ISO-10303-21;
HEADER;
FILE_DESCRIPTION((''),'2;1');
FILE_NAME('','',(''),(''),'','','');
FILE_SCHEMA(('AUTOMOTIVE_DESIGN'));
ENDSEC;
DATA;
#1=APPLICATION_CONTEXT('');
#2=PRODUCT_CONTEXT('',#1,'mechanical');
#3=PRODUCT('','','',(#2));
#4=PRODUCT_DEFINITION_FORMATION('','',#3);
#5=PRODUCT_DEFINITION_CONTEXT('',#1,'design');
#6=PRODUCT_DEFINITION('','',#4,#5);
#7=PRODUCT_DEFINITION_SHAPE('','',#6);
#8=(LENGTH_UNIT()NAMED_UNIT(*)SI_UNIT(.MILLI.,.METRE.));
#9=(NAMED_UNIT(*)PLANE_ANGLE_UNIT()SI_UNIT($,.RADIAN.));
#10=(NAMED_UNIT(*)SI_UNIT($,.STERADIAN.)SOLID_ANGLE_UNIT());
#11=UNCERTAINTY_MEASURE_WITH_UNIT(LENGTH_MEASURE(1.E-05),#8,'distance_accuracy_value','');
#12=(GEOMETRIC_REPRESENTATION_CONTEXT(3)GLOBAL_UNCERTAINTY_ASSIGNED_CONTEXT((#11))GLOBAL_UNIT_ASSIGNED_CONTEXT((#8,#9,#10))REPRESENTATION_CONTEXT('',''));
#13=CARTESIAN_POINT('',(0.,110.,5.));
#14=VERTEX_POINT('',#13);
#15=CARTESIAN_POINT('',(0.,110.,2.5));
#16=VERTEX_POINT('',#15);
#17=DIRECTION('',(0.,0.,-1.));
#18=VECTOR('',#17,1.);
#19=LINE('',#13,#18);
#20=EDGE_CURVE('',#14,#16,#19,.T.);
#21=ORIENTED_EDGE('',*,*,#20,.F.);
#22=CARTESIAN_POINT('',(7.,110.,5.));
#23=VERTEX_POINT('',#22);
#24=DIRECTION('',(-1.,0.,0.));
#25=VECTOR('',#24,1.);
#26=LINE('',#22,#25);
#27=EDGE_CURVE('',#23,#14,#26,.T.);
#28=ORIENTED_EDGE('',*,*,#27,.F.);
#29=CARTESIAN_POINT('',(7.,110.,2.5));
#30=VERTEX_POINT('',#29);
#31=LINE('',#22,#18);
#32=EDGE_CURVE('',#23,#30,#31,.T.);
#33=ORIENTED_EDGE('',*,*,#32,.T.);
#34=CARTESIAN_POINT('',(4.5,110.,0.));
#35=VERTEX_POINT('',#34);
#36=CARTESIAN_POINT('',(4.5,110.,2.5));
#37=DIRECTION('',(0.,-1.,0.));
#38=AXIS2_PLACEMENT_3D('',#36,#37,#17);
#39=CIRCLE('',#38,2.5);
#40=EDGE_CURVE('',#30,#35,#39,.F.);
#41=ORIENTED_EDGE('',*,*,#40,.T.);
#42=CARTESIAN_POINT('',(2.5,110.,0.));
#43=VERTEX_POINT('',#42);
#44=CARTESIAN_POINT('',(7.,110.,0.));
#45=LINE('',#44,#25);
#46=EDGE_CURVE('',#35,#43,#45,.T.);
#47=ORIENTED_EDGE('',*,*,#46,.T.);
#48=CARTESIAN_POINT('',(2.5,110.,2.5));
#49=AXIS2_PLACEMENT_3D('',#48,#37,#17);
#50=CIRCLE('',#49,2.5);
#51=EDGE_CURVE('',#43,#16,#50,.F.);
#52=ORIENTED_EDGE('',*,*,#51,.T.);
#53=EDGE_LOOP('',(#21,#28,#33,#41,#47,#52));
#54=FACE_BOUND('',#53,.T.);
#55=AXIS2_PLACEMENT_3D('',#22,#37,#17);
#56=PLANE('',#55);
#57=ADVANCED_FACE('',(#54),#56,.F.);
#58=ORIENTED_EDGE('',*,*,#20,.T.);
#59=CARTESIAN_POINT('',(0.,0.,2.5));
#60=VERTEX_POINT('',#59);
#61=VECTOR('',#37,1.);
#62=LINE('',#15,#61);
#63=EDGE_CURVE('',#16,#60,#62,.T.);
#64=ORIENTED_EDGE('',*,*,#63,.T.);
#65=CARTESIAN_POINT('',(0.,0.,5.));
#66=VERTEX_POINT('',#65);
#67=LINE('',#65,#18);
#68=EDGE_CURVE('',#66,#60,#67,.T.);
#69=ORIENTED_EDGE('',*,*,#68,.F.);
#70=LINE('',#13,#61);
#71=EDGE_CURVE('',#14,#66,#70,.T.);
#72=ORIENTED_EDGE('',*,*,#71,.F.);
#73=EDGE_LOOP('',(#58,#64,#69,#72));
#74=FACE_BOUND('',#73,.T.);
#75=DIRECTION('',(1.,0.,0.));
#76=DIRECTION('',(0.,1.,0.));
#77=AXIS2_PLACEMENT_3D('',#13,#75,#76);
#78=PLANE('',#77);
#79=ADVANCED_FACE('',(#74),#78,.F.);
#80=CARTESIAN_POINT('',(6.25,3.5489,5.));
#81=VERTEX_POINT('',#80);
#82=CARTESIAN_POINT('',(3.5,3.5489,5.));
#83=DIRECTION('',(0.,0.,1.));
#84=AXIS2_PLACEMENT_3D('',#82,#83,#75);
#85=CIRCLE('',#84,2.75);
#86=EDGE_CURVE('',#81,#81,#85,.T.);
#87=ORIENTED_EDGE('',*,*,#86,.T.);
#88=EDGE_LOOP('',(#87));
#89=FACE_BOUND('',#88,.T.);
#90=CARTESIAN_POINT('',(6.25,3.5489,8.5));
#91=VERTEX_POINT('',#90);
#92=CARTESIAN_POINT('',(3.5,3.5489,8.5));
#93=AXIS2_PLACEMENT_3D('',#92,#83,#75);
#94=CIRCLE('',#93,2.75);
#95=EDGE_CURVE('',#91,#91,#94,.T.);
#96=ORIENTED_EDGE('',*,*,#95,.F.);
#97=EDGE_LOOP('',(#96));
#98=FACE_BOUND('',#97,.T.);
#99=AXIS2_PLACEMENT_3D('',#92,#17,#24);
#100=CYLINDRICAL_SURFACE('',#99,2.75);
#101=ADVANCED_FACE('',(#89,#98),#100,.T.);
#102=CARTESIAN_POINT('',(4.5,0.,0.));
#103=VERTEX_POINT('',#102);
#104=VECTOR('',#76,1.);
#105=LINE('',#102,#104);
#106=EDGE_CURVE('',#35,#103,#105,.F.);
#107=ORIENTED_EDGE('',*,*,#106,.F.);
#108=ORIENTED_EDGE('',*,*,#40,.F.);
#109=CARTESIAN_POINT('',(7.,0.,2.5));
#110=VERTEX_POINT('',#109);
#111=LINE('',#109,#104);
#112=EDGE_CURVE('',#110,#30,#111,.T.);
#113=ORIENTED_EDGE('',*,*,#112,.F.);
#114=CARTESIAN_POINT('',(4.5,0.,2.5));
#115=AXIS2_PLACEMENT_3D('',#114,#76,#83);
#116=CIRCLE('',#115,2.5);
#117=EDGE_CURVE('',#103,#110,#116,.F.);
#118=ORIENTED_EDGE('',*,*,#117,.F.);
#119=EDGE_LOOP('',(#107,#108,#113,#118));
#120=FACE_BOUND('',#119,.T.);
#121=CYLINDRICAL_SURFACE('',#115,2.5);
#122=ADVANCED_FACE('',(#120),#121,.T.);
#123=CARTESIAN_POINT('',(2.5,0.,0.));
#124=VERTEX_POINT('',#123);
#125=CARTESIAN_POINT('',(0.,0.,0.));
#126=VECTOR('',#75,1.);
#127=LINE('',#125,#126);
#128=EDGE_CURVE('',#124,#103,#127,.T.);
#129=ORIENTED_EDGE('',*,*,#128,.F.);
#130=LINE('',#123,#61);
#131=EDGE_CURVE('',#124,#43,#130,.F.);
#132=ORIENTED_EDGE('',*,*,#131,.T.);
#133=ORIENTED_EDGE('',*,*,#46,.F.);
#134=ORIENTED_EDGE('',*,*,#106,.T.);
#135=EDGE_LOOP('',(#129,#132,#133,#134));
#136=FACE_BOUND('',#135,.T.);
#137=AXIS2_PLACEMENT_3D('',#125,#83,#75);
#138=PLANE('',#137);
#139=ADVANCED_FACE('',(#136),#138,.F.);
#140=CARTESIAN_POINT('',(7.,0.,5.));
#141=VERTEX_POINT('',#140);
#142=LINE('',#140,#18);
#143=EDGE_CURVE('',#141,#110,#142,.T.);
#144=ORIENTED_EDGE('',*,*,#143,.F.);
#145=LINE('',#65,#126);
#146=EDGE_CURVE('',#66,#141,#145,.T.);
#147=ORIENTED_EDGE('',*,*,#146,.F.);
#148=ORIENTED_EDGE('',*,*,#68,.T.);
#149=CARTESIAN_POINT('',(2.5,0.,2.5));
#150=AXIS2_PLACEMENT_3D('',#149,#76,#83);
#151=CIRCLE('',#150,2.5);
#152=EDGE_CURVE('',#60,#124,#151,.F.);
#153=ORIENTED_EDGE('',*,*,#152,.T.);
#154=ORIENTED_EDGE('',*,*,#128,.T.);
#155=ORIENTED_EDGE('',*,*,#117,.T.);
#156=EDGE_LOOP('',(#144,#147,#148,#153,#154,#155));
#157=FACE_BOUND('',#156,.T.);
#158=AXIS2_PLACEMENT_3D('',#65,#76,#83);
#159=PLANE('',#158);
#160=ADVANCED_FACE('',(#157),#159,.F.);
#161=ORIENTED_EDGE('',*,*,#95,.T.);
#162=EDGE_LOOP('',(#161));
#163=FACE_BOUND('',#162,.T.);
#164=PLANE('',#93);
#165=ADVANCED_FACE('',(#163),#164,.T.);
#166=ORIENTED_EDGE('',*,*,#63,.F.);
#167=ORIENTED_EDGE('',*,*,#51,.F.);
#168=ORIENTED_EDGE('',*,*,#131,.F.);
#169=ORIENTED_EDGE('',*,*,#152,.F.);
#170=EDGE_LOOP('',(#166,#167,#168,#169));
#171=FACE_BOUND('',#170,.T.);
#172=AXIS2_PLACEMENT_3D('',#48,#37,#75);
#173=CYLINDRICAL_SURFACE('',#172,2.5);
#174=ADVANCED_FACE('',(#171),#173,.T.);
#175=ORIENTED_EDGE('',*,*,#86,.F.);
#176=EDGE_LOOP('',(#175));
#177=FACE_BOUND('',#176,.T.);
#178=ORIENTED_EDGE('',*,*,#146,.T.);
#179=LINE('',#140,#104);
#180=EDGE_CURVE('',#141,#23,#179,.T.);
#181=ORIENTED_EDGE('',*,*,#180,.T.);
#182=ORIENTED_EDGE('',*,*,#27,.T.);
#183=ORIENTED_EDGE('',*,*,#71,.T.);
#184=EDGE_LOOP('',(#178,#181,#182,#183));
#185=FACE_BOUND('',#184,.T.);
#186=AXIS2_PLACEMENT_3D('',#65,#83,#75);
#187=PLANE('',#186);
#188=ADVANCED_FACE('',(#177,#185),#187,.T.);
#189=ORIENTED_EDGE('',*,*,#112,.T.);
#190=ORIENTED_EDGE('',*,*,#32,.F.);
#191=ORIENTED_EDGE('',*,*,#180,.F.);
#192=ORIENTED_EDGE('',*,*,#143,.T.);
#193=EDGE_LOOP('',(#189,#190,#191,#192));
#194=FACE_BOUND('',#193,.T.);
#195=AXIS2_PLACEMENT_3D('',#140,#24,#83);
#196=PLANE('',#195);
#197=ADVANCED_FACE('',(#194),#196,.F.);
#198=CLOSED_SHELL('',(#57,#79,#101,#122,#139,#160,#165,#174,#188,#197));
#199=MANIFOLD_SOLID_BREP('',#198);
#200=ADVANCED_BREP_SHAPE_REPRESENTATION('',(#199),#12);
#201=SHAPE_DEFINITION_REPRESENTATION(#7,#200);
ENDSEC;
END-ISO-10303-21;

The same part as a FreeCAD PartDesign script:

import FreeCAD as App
import Part
import Sketcher

V = App.Vector


def edges_at(feature, points):
    """Names of the edges that pass closest to the given points."""
    edges = feature.Shape.Edges
    near = lambda p: min(range(len(edges)), key=lambda i: edges[i].distToShape(Part.Vertex(*p))[0])
    return sorted({f"Edge{near(p) + 1}" for p in points})


def add_polygon(sketch, points):
    """Adds a closed chain of lines whose ends are joined by coincident constraints."""
    first, n = sketch.GeometryCount, len(points)
    for a, b in zip(points, points[1:] + points[:1]):
        sketch.addGeometry(Part.LineSegment(App.Vector(*a, 0), App.Vector(*b, 0)), False)
    for i in range(n):
        sketch.addConstraint(Sketcher.Constraint("Coincident", first + i, 2, first + (i + 1) % n, 1))

doc = App.newDocument("Part")
body = doc.addObject("PartDesign::Body", "Body")

# Sketch on XY plane
sketch1 = body.newObject("Sketcher::SketchObject", "Sketch")
sketch1.AttachmentSupport = (doc.getObject("XY_Plane"), [""])
sketch1.MapMode = "FlatFace"
add_polygon(sketch1, [(0, 110), (0, 0), (7, 0), (7, 110)])  # lines 0-3
sketch1.addConstraint(Sketcher.Constraint("Vertical", 0))
sketch1.addConstraint(Sketcher.Constraint("Horizontal", 1))
sketch1.addConstraint(Sketcher.Constraint("Vertical", 2))
sketch1.addConstraint(Sketcher.Constraint("Horizontal", 3))
sketch1.addConstraint(Sketcher.Constraint("Coincident", 0, 2, -1, 1))
sketch1.addConstraint(Sketcher.Constraint("DistanceX", 1, 1, 1, 2, 7.0))
sketch1.addConstraint(Sketcher.Constraint("DistanceY", 0, 2, 0, 1, 110.0))
pad1 = body.newObject("PartDesign::Pad", "Pad")
pad1.Profile = sketch1
pad1.Length = 5
doc.recompute()

fillet = body.newObject("PartDesign::Fillet", "Fillet")
fillet.Base = (pad1, edges_at(pad1, [(7, 55, 0), (0, 55, 0)]))
fillet.Radius = 2.5

# Sketch on XY plane
sketch2 = body.newObject("Sketcher::SketchObject", "Sketch001")
sketch2.AttachmentSupport = (doc.getObject("XY_Plane"), [""])
sketch2.MapMode = "FlatFace"
sketch2.AttachmentOffset = App.Placement(V(0, 0, 5), App.Rotation())
sketch2.addGeometry(Part.Circle(V(3.5, 3.5, 0), V(0, 0, 1), 2.8), False)
sketch2.addConstraint(Sketcher.Constraint("Diameter", 0, 5.5))
sketch2.addConstraint(Sketcher.Constraint("DistanceX", -1, 1, 0, 3, 3.5))
sketch2.addConstraint(Sketcher.Constraint("DistanceY", -1, 1, 0, 3, 3.5489))
pad2 = body.newObject("PartDesign::Pad", "Pad001")
pad2.Profile = sketch2
pad2.Length = 3.5

doc.recompute()
